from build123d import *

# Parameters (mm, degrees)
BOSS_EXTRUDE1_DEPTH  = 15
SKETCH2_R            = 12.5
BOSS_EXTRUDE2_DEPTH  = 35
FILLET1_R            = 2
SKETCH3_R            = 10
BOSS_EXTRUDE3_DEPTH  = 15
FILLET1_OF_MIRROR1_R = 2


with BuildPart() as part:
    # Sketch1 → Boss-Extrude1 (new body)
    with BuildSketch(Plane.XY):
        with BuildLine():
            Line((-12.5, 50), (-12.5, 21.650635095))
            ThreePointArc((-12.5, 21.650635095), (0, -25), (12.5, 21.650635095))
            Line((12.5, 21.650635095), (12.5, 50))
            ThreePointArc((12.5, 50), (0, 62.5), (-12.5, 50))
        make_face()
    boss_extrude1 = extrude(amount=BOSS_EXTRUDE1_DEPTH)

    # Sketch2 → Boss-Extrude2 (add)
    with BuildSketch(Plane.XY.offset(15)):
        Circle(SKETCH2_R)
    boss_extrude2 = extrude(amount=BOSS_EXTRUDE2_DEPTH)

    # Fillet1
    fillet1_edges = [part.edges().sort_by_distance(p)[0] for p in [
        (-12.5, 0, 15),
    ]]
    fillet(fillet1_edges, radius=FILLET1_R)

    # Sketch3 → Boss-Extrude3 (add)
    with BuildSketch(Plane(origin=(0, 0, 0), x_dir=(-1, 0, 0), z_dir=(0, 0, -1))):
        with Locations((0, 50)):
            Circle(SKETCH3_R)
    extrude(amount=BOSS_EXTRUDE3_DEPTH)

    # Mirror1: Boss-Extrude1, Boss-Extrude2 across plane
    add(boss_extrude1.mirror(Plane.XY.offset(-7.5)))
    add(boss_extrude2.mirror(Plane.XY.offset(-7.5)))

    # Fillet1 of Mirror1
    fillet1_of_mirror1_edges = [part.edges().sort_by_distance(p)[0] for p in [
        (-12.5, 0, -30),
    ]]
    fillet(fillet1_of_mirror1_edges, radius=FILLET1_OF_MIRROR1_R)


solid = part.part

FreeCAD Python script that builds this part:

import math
import FreeCAD as App
import Part
import Sketcher


def edges_at(feature, points):
    """Names of the edges that pass closest to the given points."""
    edges = feature.Shape.Edges
    near = lambda p: min(range(len(edges)), key=lambda i: edges[i].distToShape(Part.Vertex(*p))[0])
    return sorted({f"Edge{near(p) + 1}" for p in points})

doc = App.newDocument("Part")
body = doc.addObject("PartDesign::Body", "Body")

# Sketch on XY plane
sketch1 = body.newObject("Sketcher::SketchObject", "Sketch")
sketch1.AttachmentSupport = (doc.getObject("XY_Plane"), [""])
sketch1.MapMode = "FlatFace"
sketch1.addGeometry(Part.LineSegment(App.Vector(-12, 50, 0), App.Vector(-12, 22, 0)), False)
sketch1.addGeometry(Part.ArcOfCircle(Part.Circle(App.Vector(0, 0, 0), App.Vector(0, 0, 1), 25), math.radians(120), math.radians(420)), False)
sketch1.addGeometry(Part.LineSegment(App.Vector(12, 22, 0), App.Vector(12, 50, 0)), False)
sketch1.addGeometry(Part.ArcOfCircle(Part.Circle(App.Vector(0, 50, 0), App.Vector(0, 0, 1), 12), math.radians(0), math.radians(180)), False)
sketch1.addConstraint(Sketcher.Constraint("Coincident", 0, 2, 1, 1))
sketch1.addConstraint(Sketcher.Constraint("Coincident", 1, 2, 2, 1))
sketch1.addConstraint(Sketcher.Constraint("Tangent", 2, 2, 3, 1))
sketch1.addConstraint(Sketcher.Constraint("Tangent", 3, 2, 0, 1))
sketch1.addConstraint(Sketcher.Constraint("Vertical", 0))
sketch1.addConstraint(Sketcher.Constraint("Vertical", 2))
sketch1.addConstraint(Sketcher.Constraint("Coincident", 1, 3, -1, 1))
sketch1.addConstraint(Sketcher.Constraint("PointOnObject", 3, 3, -2))
sketch1.addConstraint(Sketcher.Constraint("Radius", 1, 25.0))
sketch1.addConstraint(Sketcher.Constraint("Radius", 3, 12.5))
sketch1.addConstraint(Sketcher.Constraint("DistanceY", -1, 1, 3, 3, 50.0))
pad1 = body.newObject("PartDesign::Pad", "Pad")
pad1.Profile = sketch1
pad1.Length = 15

# Sketch on XY plane
sketch2 = body.newObject("Sketcher::SketchObject", "Sketch001")
sketch2.AttachmentSupport = (doc.getObject("XY_Plane"), [""])
sketch2.MapMode = "FlatFace"
sketch2.AttachmentOffset = App.Placement(App.Vector(0, 0, 15), App.Rotation())
sketch2.addGeometry(Part.Circle(App.Vector(0, 0, 0), App.Vector(0, 0, 1), 12), False)
sketch2.addConstraint(Sketcher.Constraint("Coincident", 0, 3, -1, 1))
sketch2.addConstraint(Sketcher.Constraint("Diameter", 0, 25.0))
pad2 = body.newObject("PartDesign::Pad", "Pad001")
pad2.Profile = sketch2
pad2.Length = 35
doc.recompute()

fillet = body.newObject("PartDesign::Fillet", "Fillet")
fillet.Base = (pad2, edges_at(pad2, [(-12.5, 0, 15)]))
fillet.Radius = 2

# Sketch on XY plane
sketch3 = body.newObject("Sketcher::SketchObject", "Sketch002")
sketch3.AttachmentSupport = (doc.getObject("XY_Plane"), [""])
sketch3.MapMode = "FlatFace"
sketch3.addGeometry(Part.Circle(App.Vector(0, 50, 0), App.Vector(0, 0, 1), 10), False)
sketch3.addConstraint(Sketcher.Constraint("PointOnObject", 0, 3, -2))
sketch3.addConstraint(Sketcher.Constraint("Diameter", 0, 20.0))
sketch3.addConstraint(Sketcher.Constraint("DistanceY", -1, 1, 0, 3, 50.0))
pad3 = body.newObject("PartDesign::Pad", "Pad002")
pad3.Profile = sketch3
pad3.Length = 15
pad3.Reversed = True
doc.recompute()

datumplane = body.newObject("PartDesign::Plane", "DatumPlane")
datumplane.AttachmentSupport = (doc.getObject("XY_Plane"), [""])
datumplane.MapMode = "FlatFace"
datumplane.AttachmentOffset = App.Placement(App.Vector(0, 0, -7.5), App.Rotation())
mirrored = body.newObject("PartDesign::Mirrored", "Mirrored")
mirrored.Originals = [pad1, pad2]
mirrored.MirrorPlane = (datumplane, [""])
body.Tip = mirrored
doc.recompute()

fillet2 = body.newObject("PartDesign::Fillet", "Fillet001")
fillet2.Base = (mirrored, edges_at(mirrored, [(-12.5, 0, -30)]))
fillet2.Radius = 2

doc.recompute()
